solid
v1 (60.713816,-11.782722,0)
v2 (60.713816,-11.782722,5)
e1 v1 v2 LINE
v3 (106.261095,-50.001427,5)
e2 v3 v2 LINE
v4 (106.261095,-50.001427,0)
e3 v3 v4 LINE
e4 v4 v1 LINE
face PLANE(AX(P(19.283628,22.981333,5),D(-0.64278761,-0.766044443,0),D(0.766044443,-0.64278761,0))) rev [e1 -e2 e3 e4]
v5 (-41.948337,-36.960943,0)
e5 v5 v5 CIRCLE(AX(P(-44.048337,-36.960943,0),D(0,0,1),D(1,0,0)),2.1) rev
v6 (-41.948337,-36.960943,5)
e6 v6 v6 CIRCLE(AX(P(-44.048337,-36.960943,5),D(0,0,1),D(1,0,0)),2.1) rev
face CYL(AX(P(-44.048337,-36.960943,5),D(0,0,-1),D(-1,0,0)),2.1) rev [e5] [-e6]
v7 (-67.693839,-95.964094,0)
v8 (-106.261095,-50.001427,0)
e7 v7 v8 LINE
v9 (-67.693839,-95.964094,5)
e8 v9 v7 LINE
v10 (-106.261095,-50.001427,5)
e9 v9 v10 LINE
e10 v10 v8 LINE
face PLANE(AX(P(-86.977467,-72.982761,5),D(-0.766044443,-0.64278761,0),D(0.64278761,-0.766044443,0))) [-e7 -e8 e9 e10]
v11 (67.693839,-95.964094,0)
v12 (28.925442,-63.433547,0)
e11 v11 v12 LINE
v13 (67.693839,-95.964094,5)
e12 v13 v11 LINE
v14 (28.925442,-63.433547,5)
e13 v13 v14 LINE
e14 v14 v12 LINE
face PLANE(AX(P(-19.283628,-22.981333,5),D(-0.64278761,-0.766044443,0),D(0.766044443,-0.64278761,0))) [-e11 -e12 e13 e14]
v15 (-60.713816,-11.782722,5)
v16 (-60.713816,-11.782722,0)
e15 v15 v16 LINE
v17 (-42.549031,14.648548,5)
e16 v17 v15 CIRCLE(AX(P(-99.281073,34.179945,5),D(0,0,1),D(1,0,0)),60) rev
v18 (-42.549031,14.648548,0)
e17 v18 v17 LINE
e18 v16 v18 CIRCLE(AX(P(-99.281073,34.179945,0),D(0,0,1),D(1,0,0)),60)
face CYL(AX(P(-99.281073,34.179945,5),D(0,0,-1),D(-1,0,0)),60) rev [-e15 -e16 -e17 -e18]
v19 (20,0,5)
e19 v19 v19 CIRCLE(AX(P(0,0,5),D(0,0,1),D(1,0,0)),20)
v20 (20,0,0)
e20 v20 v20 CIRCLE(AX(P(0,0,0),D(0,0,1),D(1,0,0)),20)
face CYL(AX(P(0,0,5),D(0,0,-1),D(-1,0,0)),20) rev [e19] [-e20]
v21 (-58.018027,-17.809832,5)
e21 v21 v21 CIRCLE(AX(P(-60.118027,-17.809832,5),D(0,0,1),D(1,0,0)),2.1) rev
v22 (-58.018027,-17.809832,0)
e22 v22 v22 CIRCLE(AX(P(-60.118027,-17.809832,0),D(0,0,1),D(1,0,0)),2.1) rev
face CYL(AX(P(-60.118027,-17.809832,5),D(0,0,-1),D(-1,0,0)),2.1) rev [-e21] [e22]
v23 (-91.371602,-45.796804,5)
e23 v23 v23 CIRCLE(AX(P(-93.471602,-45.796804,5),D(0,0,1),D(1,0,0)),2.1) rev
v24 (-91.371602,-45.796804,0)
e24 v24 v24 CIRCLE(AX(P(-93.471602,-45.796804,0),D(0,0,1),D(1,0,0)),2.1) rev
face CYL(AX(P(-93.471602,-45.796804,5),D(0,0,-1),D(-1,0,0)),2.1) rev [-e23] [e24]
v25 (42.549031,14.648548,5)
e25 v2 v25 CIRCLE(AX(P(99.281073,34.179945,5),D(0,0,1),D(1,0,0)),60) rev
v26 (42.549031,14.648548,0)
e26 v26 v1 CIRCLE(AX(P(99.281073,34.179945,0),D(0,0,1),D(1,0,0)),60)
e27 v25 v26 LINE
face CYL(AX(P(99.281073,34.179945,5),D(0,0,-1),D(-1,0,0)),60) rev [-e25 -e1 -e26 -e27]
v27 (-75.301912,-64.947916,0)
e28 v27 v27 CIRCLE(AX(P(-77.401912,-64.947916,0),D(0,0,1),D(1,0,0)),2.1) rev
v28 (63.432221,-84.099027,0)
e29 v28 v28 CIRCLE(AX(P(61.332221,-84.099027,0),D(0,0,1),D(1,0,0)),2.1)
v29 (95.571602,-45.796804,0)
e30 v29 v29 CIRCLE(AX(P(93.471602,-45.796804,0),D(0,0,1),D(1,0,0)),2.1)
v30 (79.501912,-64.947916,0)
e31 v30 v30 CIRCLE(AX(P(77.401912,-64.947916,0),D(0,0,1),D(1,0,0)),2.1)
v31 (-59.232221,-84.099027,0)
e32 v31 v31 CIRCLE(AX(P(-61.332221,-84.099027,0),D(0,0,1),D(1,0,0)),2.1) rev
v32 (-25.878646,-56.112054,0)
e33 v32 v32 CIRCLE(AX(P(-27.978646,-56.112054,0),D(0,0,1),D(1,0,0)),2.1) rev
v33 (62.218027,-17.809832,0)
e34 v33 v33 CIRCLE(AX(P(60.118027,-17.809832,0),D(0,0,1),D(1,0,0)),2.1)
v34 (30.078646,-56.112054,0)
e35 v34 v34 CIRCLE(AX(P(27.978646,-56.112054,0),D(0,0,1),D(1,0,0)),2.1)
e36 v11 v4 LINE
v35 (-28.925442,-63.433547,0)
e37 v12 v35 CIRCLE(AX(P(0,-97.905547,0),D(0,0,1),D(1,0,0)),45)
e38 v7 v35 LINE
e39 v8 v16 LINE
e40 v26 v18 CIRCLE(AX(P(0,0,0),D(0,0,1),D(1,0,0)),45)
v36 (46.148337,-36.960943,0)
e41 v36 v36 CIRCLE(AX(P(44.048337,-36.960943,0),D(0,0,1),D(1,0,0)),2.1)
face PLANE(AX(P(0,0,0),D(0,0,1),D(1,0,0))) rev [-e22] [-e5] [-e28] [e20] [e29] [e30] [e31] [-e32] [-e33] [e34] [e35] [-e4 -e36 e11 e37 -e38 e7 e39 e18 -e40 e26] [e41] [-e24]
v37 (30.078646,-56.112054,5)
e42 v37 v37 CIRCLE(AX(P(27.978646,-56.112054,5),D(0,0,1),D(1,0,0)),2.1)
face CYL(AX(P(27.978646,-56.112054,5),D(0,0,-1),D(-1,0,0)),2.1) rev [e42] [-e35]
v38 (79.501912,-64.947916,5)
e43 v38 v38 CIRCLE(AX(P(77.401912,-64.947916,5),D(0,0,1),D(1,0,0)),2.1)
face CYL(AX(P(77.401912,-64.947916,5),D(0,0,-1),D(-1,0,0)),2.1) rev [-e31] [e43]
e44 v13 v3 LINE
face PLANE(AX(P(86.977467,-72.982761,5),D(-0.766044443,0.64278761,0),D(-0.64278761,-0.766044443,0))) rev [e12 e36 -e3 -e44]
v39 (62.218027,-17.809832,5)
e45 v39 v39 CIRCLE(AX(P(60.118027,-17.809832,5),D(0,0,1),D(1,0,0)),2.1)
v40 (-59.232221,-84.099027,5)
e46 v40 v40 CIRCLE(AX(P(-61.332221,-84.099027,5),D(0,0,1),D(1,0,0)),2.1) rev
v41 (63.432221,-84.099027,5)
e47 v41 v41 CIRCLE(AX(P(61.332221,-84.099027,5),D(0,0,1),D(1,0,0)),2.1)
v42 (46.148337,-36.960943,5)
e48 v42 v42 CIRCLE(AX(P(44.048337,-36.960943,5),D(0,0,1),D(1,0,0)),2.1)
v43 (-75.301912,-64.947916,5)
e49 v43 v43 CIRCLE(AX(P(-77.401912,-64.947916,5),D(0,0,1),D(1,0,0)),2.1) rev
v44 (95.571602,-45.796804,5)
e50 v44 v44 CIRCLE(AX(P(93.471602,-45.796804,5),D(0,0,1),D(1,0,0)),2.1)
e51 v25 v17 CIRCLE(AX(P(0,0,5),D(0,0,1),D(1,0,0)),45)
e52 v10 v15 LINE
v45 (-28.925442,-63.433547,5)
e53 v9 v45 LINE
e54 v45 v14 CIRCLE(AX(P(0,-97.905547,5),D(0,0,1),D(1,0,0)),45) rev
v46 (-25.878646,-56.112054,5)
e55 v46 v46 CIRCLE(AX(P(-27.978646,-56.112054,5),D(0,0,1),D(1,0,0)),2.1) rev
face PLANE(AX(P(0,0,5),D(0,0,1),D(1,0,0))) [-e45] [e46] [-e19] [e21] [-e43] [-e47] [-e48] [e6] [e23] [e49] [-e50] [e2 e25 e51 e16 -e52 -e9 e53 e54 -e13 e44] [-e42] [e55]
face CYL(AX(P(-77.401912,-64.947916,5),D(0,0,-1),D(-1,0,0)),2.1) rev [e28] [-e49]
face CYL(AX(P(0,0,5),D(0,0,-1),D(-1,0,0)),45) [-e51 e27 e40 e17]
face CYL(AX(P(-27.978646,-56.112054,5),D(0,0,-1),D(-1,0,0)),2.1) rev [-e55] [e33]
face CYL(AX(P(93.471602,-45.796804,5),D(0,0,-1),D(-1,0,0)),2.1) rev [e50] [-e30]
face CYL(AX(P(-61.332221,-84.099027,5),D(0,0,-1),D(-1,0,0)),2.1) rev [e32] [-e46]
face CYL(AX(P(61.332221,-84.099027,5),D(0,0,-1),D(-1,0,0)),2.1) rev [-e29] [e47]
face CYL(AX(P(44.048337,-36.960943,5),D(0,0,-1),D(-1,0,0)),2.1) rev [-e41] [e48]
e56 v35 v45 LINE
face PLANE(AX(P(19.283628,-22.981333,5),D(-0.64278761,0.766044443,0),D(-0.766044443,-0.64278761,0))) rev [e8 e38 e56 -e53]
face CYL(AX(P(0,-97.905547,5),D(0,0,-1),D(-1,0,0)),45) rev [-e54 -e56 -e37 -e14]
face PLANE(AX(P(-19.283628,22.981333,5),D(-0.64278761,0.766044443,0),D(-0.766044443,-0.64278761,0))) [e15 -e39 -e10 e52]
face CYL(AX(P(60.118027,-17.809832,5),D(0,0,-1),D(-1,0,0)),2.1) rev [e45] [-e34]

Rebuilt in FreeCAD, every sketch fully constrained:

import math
import FreeCAD as App
import Part
import Sketcher

V = App.Vector
Q = App.Units.Quantity


def edges_at(feature, points):
    """Names of the edges that pass closest to the given points."""
    edges = feature.Shape.Edges
    near = lambda p: min(range(len(edges)), key=lambda i: edges[i].distToShape(Part.Vertex(*p))[0])
    return sorted({f"Edge{near(p) + 1}" for p in points})

doc = App.newDocument("Part")
body = doc.addObject("PartDesign::Body", "Body")

# Sketch on XY plane
sketch1 = doc.addObject("Sketcher::SketchObject", "Sketch")
body.addObject(sketch1)
sketch1.AttachmentSupport = (doc.XY_Plane, [""])
sketch1.MapMode = "FlatFace"
sketch1.addGeometry([
    Part.LineSegment(V(-106.3, -50, 0), V(-67.7, -96, 0)),  # 0
    Part.LineSegment(V(-67.7, -96, 0), V(0, -39.2, 0)),  # 1
    Part.LineSegment(V(0, -39.2, 0), V(67.7, -96, 0)),  # 2
    Part.LineSegment(V(67.7, -96, 0), V(106.3, -50, 0)),  # 3
    Part.LineSegment(V(106.3, -50, 0), V(45, 1.4, 0)),  # 4
    Part.ArcOfCircle(Part.Circle(V(0, 0, 0), V(0, 0, 1), 45), math.radians(2), math.radians(178)),  # 5
    Part.LineSegment(V(-45, 1.4, 0), V(-106.3, -50, 0)),  # 6
    Part.Circle(V(-61.3, -84.1, 0), V(0, 0, 1), 2.1),  # 7
    Part.Circle(V(-77.4, -64.9, 0), V(0, 0, 1), 2.1),  # 8
    Part.Circle(V(-93.5, -45.8, 0), V(0, 0, 1), 2.1),  # 9
    Part.Circle(V(-28, -56.1, 0), V(0, 0, 1), 2.1),  # 10
    Part.Circle(V(-44, -37, 0), V(0, 0, 1), 2.1),  # 11
    Part.Circle(V(61.3, -84.1, 0), V(0, 0, 1), 2.1),  # 12
    Part.Circle(V(77.4, -64.9, 0), V(0, 0, 1), 2.1),  # 13
    Part.Circle(V(28, -56.1, 0), V(0, 0, 1), 2.1),  # 14
    Part.Circle(V(44, -37, 0), V(0, 0, 1), 2.1),  # 15
    Part.Circle(V(93.5, -45.8, 0), V(0, 0, 1), 2.1),  # 16
    Part.Circle(V(-60.1, -17.8, 0), V(0, 0, 1), 2.1),  # 17
    Part.Circle(V(0, 0, 0), V(0, 0, 1), 20),  # 18
    Part.Circle(V(60.1, -17.8, 0), V(0, 0, 1), 2.1),  # 19
], False)
sketch1.addConstraint([
    Sketcher.Constraint("Coincident", 0, 2, 1, 1),
    Sketcher.Constraint("Coincident", 1, 2, 2, 1),
    Sketcher.Constraint("Coincident", 2, 2, 3, 1),
    Sketcher.Constraint("Coincident", 3, 2, 4, 1),
    Sketcher.Constraint("Coincident", 4, 2, 5, 1),
    Sketcher.Constraint("Coincident", 5, 2, 6, 1),
    Sketcher.Constraint("Coincident", 6, 2, 0, 1),
    Sketcher.Constraint("Coincident", 5, 3, -1, 1),
    Sketcher.Constraint("Coincident", 18, 3, -1, 1),
    Sketcher.Constraint("Equal", 7, 8),
    Sketcher.Constraint("Equal", 8, 9),
    Sketcher.Constraint("Equal", 9, 10),
    Sketcher.Constraint("Equal", 10, 11),
    Sketcher.Constraint("Equal", 11, 12),
    Sketcher.Constraint("Equal", 12, 13),
    Sketcher.Constraint("Equal", 13, 14),
    Sketcher.Constraint("Equal", 14, 15),
    Sketcher.Constraint("Equal", 15, 16),
    Sketcher.Constraint("Equal", 16, 17),
    Sketcher.Constraint("Equal", 17, 19),
    Sketcher.Constraint("Symmetric", 7, 3, 12, 3, -2),
    Sketcher.Constraint("Symmetric", 8, 3, 13, 3, -2),
    Sketcher.Constraint("Symmetric", 10, 3, 14, 3, -2),
    Sketcher.Constraint("Symmetric", 11, 3, 15, 3, -2),
    Sketcher.Constraint("Symmetric", 9, 3, 16, 3, -2),
    Sketcher.Constraint("Symmetric", 17, 3, 19, 3, -2),
    Sketcher.Constraint("Symmetric", 0, 2, 2, 2, -2),
    Sketcher.Constraint("Symmetric", 3, 2, 6, 2, -2),
    Sketcher.Constraint("PointOnObject", 1, 2, -2),
    Sketcher.Constraint("Perpendicular", 0, 1),
    Sketcher.Constraint("Perpendicular", 3, 4),
    Sketcher.Constraint("Parallel", 1, 6),
    Sketcher.Constraint("Diameter", 18, Q("40 mm")),
    Sketcher.Constraint("Radius", 5, Q("45 mm")),
    Sketcher.Constraint("Diameter", 7, Q("4.2 mm")),
    Sketcher.Constraint("Angle", 0, Q("-50 deg")),
    Sketcher.Constraint("Distance", 0, Q("60 mm")),
    Sketcher.Constraint("Distance", 4, Q("80 mm")),
    Sketcher.Constraint("DistanceX", 9, 3, -1, 1, Q("93.471602 mm")),
    Sketcher.Constraint("DistanceY", 12, 3, 3, 2, Q("34.097599 mm")),
    Sketcher.Constraint("Distance", 1, Q("88.368031 mm")),
    Sketcher.Constraint("DistanceX", 7, 3, -1, 1, Q("61.332221 mm")),
    Sketcher.Constraint("DistanceX", 8, 3, -1, 1, Q("77.401912 mm")),
    Sketcher.Constraint("DistanceY", 17, 3, -1, 1, Q("17.809832 mm")),
    Sketcher.Constraint("DistanceY", 7, 3, 8, 3, Q("19.151111 mm")),
    Sketcher.Constraint("DistanceY", 8, 3, 9, 3, Q("19.151111 mm")),
    Sketcher.Constraint("DistanceY", 8, 3, 10, 3, Q("8.835861 mm")),
    Sketcher.Constraint("DistanceX", 11, 3, 10, 3, Q("16.06969 mm")),
    Sketcher.Constraint("DistanceY", 10, 3, 11, 3, Q("19.151111 mm")),
    Sketcher.Constraint("DistanceX", 11, 3, 13, 3, Q("121.450248 mm")),
    Sketcher.Constraint("DistanceX", 17, 3, 11, 3, Q("16.06969 mm")),
])
pad1 = doc.addObject("PartDesign::Pad", "Pad")
body.addObject(pad1)
pad1.Profile = sketch1
pad1.Length = 5
doc.recompute()

fillet = doc.addObject("PartDesign::Fillet", "Fillet")
body.addObject(fillet)
fillet.Base = (pad1, edges_at(pad1, [(44.978, 1.422, 2.5), (-44.978, 1.422, 2.5)]))
fillet.Radius = 60
doc.recompute()

fillet2 = doc.addObject("PartDesign::Fillet", "Fillet001")
body.addObject(fillet2)
fillet2.Base = (fillet, edges_at(fillet, [(0, -39.162, 2.5)]))
fillet2.Radius = 45

doc.recompute()
